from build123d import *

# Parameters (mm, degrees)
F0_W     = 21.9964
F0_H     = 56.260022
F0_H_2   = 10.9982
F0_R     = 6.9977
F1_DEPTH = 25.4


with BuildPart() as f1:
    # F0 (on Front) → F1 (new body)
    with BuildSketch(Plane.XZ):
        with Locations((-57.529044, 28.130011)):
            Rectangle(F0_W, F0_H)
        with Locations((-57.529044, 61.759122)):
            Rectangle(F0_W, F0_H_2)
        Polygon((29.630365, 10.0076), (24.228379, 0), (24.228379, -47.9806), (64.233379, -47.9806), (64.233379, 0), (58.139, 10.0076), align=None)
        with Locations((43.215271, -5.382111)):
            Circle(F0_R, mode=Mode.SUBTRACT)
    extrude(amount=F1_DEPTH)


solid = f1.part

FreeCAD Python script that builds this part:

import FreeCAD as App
import Part
import Sketcher
Q = App.Units.Quantity

doc = App.newDocument("Part")
body = doc.addObject("PartDesign::Body", "Body")
body.AllowCompound = True

# Sketch on XZ plane
sketch1 = body.newObject("Sketcher::SketchObject", "Sketch")
sketch1.AttachmentSupport = (doc.getObject("XZ_Plane"), [""])
sketch1.MapMode = "FlatFace"
sketch1.addGeometry(Part.LineSegment(App.Vector(-68.527244, 0, 0), App.Vector(-46.530844, 0, 0)), False)
sketch1.addGeometry(Part.LineSegment(App.Vector(-46.530844, 0, 0), App.Vector(-46.530844, 67.258222, 0)), False)
sketch1.addGeometry(Part.LineSegment(App.Vector(-46.530844, 67.258222, 0), App.Vector(-68.527244, 67.258222, 0)), False)
sketch1.addGeometry(Part.LineSegment(App.Vector(-68.527244, 67.258222, 0), App.Vector(-68.527244, 0, 0)), False)
sketch1.addGeometry(Part.LineSegment(App.Vector(29.630365, 10.0076, 0), App.Vector(24.228379, 0, 0)), False)
sketch1.addGeometry(Part.LineSegment(App.Vector(24.228379, 0, 0), App.Vector(24.228379, -47.9806, 0)), False)
sketch1.addGeometry(Part.LineSegment(App.Vector(24.228379, -47.9806, 0), App.Vector(64.233379, -47.9806, 0)), False)
sketch1.addGeometry(Part.LineSegment(App.Vector(64.233379, -47.9806, 0), App.Vector(64.233379, 0, 0)), False)
sketch1.addGeometry(Part.LineSegment(App.Vector(64.233379, 0, 0), App.Vector(58.139, 10.0076, 0)), False)
sketch1.addGeometry(Part.LineSegment(App.Vector(58.139, 10.0076, 0), App.Vector(29.630365, 10.0076, 0)), False)
sketch1.addGeometry(Part.Circle(App.Vector(43.215271, -5.382111, 0), App.Vector(0, 0, 1), 6.9977), False)
sketch1.addConstraint(Sketcher.Constraint("Coincident", 0, 2, 1, 1))
sketch1.addConstraint(Sketcher.Constraint("Coincident", 1, 2, 2, 1))
sketch1.addConstraint(Sketcher.Constraint("Coincident", 2, 2, 3, 1))
sketch1.addConstraint(Sketcher.Constraint("Coincident", 3, 2, 0, 1))
sketch1.addConstraint(Sketcher.Constraint("Coincident", 4, 2, 5, 1))
sketch1.addConstraint(Sketcher.Constraint("Coincident", 5, 2, 6, 1))
sketch1.addConstraint(Sketcher.Constraint("Coincident", 6, 2, 7, 1))
sketch1.addConstraint(Sketcher.Constraint("Coincident", 7, 2, 8, 1))
sketch1.addConstraint(Sketcher.Constraint("Coincident", 8, 2, 9, 1))
sketch1.addConstraint(Sketcher.Constraint("Coincident", 9, 2, 4, 1))
sketch1.addConstraint(Sketcher.Constraint("Horizontal", 0))
sketch1.addConstraint(Sketcher.Constraint("Vertical", 1))
sketch1.addConstraint(Sketcher.Constraint("Horizontal", 2))
sketch1.addConstraint(Sketcher.Constraint("Vertical", 3))
sketch1.addConstraint(Sketcher.Constraint("Vertical", 5))
sketch1.addConstraint(Sketcher.Constraint("Horizontal", 6))
sketch1.addConstraint(Sketcher.Constraint("Vertical", 7))
sketch1.addConstraint(Sketcher.Constraint("Horizontal", 9))
sketch1.addConstraint(Sketcher.Constraint("PointOnObject", 0, 2, -1))
sketch1.addConstraint(Sketcher.Constraint("PointOnObject", 4, 2, -1))
sketch1.addConstraint(Sketcher.Constraint("PointOnObject", 7, 2, -1))
sketch1.addConstraint(Sketcher.Constraint("Diameter", 10, Q("0.551 in")))
sketch1.addConstraint(Sketcher.Constraint("DistanceX", 0, 1, 0, 2, Q("0.866 in")))
sketch1.addConstraint(Sketcher.Constraint("DistanceX", 6, 1, 6, 2, Q("1.575 in")))
sketch1.addConstraint(Sketcher.Constraint("DistanceY", 5, 2, 5, 1, Q("1.889 in")))
sketch1.addConstraint(Sketcher.Constraint("DistanceY", -1, 1, 8, 2, Q("0.394 in")))
sketch1.addConstraint(Sketcher.Constraint("DistanceX", -1, 1, 8, 2, 58.139))
sketch1.addConstraint(Sketcher.Constraint("Distance", 4, 11.372489))
sketch1.addConstraint(Sketcher.Constraint("Distance", 8, 11.717231))
sketch1.addConstraint(Sketcher.Constraint("DistanceY", 1, 1, 1, 2, 67.258222))
sketch1.addConstraint(Sketcher.Constraint("DistanceX", -1, 1, 10, 3, 43.215271))
sketch1.addConstraint(Sketcher.Constraint("DistanceY", 10, 3, -1, 1, 5.382111))
sketch1.addConstraint(Sketcher.Constraint("DistanceX", 0, 2, -1, 1, 46.530844))
pad1 = body.newObject("PartDesign::Pad", "Pad")
pad1.Profile = sketch1
pad1.Length = Q("1 in")

doc.recompute()
